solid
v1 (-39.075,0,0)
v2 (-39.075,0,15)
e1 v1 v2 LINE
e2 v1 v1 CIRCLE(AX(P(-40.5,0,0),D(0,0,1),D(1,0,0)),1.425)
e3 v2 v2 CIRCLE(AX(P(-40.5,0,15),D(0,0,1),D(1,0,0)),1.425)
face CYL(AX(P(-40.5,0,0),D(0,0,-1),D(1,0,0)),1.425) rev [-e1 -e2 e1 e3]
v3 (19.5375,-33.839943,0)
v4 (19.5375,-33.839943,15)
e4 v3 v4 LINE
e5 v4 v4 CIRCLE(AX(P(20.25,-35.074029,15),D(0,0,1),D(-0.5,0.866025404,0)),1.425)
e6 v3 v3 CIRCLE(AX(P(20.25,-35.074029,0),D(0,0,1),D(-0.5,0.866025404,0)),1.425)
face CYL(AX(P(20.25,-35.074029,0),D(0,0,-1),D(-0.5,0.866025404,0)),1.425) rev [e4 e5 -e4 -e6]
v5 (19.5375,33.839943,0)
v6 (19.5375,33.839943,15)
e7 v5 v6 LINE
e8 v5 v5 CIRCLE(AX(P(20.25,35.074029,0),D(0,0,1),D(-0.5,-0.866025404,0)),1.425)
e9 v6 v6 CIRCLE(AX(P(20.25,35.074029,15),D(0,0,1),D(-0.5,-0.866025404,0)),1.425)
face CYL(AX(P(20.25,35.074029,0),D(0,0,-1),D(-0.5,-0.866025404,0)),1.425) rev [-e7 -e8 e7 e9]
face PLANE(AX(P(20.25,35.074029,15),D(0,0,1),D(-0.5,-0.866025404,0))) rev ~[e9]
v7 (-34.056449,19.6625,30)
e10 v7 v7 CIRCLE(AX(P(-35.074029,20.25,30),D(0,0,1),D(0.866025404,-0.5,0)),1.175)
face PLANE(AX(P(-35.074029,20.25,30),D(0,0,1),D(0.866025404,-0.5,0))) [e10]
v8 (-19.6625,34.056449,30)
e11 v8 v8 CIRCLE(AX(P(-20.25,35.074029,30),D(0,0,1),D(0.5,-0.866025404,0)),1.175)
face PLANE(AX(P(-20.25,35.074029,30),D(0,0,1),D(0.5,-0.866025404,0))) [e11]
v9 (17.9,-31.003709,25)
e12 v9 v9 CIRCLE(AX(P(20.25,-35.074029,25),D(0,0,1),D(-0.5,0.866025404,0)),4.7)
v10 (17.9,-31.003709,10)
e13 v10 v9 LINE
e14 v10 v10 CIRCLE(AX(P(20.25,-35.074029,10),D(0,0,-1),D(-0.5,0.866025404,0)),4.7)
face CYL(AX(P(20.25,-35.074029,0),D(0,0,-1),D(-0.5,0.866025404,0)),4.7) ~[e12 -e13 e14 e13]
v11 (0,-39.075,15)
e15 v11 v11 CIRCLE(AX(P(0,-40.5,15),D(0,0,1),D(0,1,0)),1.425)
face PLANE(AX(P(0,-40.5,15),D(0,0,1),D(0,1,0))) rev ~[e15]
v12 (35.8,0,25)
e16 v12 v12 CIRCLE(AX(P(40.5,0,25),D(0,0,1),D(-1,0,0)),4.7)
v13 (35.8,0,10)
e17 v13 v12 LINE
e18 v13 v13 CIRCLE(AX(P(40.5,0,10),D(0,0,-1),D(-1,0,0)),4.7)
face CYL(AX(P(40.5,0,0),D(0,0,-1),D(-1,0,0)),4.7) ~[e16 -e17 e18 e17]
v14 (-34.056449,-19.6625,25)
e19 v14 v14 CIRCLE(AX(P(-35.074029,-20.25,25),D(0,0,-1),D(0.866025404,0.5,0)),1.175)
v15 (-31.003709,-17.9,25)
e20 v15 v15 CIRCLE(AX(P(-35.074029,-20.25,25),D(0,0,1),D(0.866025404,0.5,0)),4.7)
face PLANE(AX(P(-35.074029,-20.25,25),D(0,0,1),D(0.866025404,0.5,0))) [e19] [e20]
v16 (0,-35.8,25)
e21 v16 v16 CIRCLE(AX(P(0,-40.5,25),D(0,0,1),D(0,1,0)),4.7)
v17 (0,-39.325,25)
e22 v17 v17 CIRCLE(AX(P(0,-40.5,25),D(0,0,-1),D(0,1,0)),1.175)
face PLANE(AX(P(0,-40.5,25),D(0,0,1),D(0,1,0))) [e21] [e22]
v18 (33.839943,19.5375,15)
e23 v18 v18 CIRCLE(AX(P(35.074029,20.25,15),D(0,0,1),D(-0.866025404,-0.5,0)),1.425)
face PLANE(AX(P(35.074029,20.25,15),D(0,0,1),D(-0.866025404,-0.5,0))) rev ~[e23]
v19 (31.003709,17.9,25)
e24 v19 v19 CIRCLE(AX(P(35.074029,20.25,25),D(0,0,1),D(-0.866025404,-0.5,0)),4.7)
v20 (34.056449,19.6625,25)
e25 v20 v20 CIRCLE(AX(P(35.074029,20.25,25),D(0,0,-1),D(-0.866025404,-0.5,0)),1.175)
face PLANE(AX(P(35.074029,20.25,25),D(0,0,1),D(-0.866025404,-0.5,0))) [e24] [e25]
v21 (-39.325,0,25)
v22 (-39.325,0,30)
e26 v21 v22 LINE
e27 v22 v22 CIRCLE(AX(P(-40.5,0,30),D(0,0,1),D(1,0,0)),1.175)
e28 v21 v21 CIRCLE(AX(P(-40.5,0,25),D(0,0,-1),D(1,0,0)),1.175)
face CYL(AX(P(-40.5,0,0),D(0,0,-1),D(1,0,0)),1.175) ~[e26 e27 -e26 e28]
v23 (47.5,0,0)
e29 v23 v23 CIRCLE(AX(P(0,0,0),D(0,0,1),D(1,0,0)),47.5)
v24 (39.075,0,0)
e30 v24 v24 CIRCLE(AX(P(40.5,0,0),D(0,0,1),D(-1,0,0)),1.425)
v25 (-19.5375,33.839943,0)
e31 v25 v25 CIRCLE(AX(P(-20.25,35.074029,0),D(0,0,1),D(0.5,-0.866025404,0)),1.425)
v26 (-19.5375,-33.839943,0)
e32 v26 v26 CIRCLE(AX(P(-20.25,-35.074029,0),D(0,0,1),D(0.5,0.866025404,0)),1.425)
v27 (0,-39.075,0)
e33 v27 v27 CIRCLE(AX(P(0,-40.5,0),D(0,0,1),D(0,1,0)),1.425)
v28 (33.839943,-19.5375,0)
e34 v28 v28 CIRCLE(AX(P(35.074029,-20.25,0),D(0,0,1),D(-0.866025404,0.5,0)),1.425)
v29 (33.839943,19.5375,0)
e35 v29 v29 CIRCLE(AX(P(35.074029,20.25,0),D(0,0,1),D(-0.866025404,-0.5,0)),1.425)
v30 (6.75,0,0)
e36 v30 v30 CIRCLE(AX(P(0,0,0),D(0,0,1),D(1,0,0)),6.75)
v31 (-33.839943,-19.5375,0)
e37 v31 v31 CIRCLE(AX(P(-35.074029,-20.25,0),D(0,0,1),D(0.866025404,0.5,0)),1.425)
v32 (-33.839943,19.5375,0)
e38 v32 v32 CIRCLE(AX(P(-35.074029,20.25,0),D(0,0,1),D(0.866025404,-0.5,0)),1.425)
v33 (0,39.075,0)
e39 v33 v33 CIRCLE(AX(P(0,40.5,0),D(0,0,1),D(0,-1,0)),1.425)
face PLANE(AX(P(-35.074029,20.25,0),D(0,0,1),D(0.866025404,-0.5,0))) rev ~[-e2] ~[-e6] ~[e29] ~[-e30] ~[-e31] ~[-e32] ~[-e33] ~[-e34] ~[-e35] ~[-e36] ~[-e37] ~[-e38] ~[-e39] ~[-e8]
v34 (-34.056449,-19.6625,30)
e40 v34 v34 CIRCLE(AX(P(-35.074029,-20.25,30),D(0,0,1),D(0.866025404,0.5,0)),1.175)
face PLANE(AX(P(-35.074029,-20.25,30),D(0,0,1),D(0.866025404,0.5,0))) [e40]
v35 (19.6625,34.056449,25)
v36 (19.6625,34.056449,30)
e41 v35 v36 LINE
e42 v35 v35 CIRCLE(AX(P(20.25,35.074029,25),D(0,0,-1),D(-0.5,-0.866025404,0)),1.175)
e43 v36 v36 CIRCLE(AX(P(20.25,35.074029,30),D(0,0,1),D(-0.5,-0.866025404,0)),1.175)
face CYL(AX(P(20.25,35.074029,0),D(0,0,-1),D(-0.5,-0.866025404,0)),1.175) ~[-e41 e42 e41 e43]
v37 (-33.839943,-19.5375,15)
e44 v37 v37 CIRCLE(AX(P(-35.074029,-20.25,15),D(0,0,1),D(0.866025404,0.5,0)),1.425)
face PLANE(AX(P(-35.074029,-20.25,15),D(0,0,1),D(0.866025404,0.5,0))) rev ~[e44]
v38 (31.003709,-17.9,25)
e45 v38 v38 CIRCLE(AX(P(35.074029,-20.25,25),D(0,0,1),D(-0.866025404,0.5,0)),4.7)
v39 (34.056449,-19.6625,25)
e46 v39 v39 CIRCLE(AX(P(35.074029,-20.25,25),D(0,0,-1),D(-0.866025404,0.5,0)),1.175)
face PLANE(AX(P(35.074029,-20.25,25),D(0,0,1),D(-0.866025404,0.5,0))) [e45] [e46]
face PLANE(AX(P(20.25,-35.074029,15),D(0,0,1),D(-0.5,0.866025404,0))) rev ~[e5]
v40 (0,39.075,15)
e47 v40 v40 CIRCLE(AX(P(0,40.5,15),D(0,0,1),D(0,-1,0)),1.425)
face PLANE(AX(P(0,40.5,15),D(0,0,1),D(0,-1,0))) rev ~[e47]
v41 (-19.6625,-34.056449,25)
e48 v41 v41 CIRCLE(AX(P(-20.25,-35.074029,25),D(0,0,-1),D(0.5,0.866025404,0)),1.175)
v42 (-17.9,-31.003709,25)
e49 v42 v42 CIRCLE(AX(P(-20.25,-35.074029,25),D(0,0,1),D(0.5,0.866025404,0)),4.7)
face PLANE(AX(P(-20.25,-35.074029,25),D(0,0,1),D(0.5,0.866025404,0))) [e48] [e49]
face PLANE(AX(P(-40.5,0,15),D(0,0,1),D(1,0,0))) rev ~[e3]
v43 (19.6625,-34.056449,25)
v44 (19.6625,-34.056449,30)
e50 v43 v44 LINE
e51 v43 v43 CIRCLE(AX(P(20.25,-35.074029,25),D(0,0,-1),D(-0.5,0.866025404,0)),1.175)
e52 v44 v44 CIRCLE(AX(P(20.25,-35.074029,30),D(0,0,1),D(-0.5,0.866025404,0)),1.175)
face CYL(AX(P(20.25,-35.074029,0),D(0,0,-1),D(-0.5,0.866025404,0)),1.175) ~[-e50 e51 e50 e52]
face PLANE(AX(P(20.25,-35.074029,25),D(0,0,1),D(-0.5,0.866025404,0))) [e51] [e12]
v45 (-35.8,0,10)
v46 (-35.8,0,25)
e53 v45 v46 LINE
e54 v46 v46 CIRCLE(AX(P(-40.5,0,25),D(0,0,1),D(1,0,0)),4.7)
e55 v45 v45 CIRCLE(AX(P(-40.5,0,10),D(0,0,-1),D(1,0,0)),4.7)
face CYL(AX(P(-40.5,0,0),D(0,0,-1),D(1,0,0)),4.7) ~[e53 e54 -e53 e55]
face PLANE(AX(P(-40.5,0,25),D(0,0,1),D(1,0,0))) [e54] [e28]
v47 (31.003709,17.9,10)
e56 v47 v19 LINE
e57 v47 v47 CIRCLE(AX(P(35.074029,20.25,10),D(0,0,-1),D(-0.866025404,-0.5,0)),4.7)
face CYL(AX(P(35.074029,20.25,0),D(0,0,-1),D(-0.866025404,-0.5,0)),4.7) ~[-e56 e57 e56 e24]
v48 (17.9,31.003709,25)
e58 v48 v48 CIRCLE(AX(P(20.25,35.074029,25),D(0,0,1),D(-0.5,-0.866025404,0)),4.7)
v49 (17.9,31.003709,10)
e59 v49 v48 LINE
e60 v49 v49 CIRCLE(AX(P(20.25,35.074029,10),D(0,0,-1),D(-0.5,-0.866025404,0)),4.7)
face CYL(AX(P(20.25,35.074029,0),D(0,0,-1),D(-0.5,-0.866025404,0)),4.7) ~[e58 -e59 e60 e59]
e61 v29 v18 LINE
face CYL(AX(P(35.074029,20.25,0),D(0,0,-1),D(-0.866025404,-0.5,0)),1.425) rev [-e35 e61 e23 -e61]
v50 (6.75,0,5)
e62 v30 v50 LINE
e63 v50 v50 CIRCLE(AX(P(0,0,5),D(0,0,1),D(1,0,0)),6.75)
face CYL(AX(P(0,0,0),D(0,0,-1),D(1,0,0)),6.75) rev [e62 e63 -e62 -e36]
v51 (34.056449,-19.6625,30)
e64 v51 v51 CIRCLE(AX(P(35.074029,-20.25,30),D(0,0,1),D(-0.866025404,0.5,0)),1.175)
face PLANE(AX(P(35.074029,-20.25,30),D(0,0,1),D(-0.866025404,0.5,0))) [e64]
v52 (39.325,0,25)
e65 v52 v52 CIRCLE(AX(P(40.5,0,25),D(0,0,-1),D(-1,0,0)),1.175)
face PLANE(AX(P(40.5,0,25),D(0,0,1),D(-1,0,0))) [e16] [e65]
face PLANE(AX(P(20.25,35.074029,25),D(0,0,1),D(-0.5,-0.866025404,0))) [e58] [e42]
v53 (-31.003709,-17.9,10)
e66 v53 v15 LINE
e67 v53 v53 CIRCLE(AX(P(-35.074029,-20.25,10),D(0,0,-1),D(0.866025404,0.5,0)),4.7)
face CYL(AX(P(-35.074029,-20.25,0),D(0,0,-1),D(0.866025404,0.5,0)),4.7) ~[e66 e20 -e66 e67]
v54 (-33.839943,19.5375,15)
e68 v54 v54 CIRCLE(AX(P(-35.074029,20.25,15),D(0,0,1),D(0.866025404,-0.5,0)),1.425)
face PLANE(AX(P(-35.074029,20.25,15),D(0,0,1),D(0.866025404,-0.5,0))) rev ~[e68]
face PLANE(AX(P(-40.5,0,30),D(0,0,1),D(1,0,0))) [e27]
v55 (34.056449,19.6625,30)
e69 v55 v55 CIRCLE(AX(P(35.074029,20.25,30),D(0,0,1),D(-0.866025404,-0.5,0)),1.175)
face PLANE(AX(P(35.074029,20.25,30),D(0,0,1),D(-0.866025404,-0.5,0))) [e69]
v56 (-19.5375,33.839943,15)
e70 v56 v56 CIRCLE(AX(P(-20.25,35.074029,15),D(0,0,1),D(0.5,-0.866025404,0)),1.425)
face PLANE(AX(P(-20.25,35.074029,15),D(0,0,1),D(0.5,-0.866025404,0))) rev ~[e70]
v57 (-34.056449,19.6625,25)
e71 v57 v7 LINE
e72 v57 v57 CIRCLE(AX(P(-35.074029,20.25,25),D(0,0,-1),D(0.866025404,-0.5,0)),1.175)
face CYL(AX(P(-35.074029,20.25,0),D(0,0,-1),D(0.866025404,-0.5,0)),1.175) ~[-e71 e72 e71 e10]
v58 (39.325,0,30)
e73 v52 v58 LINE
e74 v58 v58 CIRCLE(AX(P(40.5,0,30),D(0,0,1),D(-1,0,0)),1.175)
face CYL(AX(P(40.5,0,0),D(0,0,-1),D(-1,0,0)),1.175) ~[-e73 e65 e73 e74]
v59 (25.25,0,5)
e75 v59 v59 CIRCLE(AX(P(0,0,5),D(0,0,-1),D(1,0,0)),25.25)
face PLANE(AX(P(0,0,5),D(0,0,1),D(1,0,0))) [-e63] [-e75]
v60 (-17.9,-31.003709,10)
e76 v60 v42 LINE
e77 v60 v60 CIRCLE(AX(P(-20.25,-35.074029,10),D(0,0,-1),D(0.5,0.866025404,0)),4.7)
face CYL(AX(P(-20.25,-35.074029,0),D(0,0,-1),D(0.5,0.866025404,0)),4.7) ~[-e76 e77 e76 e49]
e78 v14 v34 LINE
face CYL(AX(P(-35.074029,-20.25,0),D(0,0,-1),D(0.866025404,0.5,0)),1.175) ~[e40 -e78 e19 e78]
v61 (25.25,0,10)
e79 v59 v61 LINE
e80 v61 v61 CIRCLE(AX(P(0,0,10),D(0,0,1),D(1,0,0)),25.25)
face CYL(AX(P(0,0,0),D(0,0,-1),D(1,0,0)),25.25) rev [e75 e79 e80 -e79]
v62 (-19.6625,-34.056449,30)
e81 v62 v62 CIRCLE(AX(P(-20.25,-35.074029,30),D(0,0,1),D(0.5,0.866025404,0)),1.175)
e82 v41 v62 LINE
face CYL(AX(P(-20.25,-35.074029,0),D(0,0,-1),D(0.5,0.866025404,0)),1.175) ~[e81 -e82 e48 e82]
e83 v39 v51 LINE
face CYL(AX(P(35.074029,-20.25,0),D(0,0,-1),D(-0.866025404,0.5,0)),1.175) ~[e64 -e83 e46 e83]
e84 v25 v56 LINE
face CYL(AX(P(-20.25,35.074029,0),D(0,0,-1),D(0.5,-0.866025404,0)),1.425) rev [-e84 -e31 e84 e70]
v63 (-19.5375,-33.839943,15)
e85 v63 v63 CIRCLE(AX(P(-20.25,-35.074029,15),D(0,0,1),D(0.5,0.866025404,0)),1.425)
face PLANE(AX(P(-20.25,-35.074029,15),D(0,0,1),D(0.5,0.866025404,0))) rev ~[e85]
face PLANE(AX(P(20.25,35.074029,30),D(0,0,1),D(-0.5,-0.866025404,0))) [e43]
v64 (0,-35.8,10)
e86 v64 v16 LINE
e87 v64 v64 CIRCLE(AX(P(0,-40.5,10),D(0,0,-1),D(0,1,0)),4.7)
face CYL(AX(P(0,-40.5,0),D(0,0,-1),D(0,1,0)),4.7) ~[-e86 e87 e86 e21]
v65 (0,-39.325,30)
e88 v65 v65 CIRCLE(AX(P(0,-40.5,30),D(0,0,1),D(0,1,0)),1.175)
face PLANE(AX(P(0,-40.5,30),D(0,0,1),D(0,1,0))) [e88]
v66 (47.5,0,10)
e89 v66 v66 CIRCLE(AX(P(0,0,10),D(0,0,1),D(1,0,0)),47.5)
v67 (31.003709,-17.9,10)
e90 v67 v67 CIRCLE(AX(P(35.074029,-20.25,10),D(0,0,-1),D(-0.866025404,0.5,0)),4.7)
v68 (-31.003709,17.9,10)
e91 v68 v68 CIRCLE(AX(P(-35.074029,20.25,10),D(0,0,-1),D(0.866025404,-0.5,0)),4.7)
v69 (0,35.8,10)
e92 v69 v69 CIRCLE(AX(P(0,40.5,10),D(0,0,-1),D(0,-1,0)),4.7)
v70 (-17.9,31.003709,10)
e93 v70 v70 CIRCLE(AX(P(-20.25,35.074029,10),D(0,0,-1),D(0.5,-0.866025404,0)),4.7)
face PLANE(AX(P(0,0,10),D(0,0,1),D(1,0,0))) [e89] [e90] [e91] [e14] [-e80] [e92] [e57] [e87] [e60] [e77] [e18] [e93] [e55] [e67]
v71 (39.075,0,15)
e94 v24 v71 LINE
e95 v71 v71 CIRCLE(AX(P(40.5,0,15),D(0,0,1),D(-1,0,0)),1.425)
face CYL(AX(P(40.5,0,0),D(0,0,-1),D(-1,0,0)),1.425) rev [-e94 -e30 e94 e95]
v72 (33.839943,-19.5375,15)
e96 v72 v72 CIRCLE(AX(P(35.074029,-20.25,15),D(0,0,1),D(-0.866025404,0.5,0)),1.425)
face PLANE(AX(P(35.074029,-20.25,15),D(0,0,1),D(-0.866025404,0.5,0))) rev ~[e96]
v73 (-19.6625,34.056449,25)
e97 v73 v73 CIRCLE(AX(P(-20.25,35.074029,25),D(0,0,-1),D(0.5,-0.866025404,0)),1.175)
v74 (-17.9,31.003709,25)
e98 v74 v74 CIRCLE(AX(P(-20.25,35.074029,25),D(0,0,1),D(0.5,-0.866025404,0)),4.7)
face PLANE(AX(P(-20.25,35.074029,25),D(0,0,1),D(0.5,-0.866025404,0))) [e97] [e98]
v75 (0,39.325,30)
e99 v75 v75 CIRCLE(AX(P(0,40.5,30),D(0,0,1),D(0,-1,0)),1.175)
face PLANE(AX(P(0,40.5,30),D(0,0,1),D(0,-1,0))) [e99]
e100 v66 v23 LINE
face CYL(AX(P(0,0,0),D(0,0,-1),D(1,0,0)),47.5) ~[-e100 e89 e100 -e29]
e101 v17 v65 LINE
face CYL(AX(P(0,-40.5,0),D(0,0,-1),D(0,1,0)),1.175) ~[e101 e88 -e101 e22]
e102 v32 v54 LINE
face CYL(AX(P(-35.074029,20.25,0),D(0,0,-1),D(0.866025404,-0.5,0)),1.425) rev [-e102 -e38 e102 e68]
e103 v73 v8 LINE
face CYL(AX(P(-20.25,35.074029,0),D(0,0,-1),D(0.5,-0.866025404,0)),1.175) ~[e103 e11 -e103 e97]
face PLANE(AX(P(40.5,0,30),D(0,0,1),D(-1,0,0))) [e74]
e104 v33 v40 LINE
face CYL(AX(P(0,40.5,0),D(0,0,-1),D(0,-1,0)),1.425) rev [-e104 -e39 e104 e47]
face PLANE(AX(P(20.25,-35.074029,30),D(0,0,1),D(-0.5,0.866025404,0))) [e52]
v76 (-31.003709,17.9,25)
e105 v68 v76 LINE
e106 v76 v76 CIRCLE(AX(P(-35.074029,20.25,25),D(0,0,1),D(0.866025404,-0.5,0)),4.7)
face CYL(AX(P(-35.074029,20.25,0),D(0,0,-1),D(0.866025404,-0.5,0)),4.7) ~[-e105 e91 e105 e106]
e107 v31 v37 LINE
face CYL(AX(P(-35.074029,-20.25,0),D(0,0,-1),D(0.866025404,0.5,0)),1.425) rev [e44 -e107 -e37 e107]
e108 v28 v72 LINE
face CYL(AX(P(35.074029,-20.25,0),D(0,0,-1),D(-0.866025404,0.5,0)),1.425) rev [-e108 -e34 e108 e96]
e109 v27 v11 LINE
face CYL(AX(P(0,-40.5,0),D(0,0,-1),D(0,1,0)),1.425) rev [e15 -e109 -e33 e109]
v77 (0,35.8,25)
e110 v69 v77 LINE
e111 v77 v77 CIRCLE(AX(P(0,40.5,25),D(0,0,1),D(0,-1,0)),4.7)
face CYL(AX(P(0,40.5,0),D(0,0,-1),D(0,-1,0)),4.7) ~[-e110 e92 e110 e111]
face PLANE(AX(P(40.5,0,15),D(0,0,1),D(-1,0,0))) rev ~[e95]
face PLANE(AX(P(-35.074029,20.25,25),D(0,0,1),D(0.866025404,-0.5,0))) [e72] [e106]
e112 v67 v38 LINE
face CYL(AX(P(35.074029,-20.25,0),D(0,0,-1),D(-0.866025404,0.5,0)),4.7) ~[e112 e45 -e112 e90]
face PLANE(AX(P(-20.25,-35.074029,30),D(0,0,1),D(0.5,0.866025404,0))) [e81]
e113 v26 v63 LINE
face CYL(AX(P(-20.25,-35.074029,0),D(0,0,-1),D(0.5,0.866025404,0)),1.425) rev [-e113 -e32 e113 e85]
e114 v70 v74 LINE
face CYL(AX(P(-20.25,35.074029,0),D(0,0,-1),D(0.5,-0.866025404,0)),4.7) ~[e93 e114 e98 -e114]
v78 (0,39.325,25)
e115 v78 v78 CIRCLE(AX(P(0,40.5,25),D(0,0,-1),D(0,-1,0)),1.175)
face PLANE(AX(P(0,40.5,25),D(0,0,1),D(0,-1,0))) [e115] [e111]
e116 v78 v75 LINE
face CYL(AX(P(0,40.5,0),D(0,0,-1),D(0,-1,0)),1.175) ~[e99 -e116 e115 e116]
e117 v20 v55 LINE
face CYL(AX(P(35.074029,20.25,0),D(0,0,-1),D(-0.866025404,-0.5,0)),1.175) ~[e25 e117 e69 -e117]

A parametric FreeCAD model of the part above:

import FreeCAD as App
import Part
import Sketcher
from FreeCAD import Vector

doc = App.newDocument("Part")
params = doc.addObject("Spreadsheet::Sheet", "Params")
for row, (alias, value) in enumerate([
    ("sketch1_diameter", "95 mm"),
    ("sketch1_diameter2", "13.5 mm"),
    ("pad1_length", "5 mm"),
    ("sketch2_diameter", "95 mm"),
    ("sketch2_diameter2", "50.5 mm"),
    ("pad2_length", "10 mm"),
    ("sketch3_diameter", "2.35 mm"),
    ("pad3_length", "30 mm"),
    ("sketch4_diameter", "9.4 mm"),
    ("pad4_length", "25 mm"),
    ("sketch5_diameter", "2.85 mm"),
    ("pocket1_length", "15 mm"),
], start=1):
    params.set(f"A{row}", alias)
    params.set(f"B{row}", "=" + value)
    params.setAlias(f"B{row}", alias)

body = doc.addObject("PartDesign::Body", "Body")

# Sketch on XY plane
sketch1 = doc.addObject("Sketcher::SketchObject", "Sketch")
body.addObject(sketch1)
sketch1.AttachmentSupport = (doc.XY_Plane, [""])
sketch1.MapMode = "FlatFace"
sketch1.addGeometry([
    Part.Circle(Vector(0, 0, 0), Vector(0, 0, 1), 48),
    Part.Circle(Vector(0, 0, 0), Vector(0, 0, 1), 7),
], False)
sketch1.addConstraint([
    Sketcher.Constraint("Coincident", 0, 3, -1, 1),
    Sketcher.Constraint("Coincident", 1, 3, -1, 1),
    Sketcher.Constraint("Diameter", 0, 95.0),
    Sketcher.Constraint("Diameter", 1, 13.5),
])
sketch1.setExpression("Constraints[2]", "Params.sketch1_diameter")
sketch1.setExpression("Constraints[3]", "Params.sketch1_diameter2")
pad1 = doc.addObject("PartDesign::Pad", "Pad")
body.addObject(pad1)
pad1.Profile = sketch1
pad1.setExpression("Length", "Params.pad1_length")

# Sketch on XY plane
sketch2 = doc.addObject("Sketcher::SketchObject", "Sketch001")
body.addObject(sketch2)
sketch2.AttachmentSupport = (doc.XY_Plane, [""])
sketch2.MapMode = "FlatFace"
sketch2.addGeometry([
    Part.Circle(Vector(0, 0, 0), Vector(0, 0, 1), 48),
    Part.Circle(Vector(0, 0, 0), Vector(0, 0, 1), 25),
], False)
sketch2.addConstraint([
    Sketcher.Constraint("Coincident", 0, 3, -1, 1),
    Sketcher.Constraint("Coincident", 1, 3, -1, 1),
    Sketcher.Constraint("Diameter", 0, 95.0),
    Sketcher.Constraint("Diameter", 1, 50.5),
])
sketch2.setExpression("Constraints[2]", "Params.sketch2_diameter")
sketch2.setExpression("Constraints[3]", "Params.sketch2_diameter2")
pad2 = doc.addObject("PartDesign::Pad", "Pad001")
body.addObject(pad2)
pad2.Profile = sketch2
pad2.setExpression("Length", "Params.pad2_length")

# Sketch on XY plane
sketch3 = doc.addObject("Sketcher::SketchObject", "Sketch002")
body.addObject(sketch3)
sketch3.AttachmentSupport = (doc.XY_Plane, [""])
sketch3.MapMode = "FlatFace"
sketch3.addGeometry(Part.Circle(Vector(-40.5, 0, 0), Vector(0, 0, 1), 1.2), False)
sketch3.addConstraint([
    Sketcher.Constraint("PointOnObject", 0, 3, -1),
    Sketcher.Constraint("Diameter", 0, 2.35),
    Sketcher.Constraint("DistanceX", 0, 3, -1, 1, 40.5),
])
sketch3.setExpression("Constraints[1]", "Params.sketch3_diameter")
pad3 = doc.addObject("PartDesign::Pad", "Pad002")
body.addObject(pad3)
pad3.Profile = sketch3
pad3.setExpression("Length", "Params.pad3_length")

# Sketch on XY plane
sketch4 = doc.addObject("Sketcher::SketchObject", "Sketch003")
body.addObject(sketch4)
sketch4.AttachmentSupport = (doc.XY_Plane, [""])
sketch4.MapMode = "FlatFace"
sketch4.addGeometry(Part.Circle(Vector(-40.5, 0, 0), Vector(0, 0, 1), 4.7), False)
sketch4.addConstraint([
    Sketcher.Constraint("PointOnObject", 0, 3, -1),
    Sketcher.Constraint("Diameter", 0, 9.4),
    Sketcher.Constraint("DistanceX", 0, 3, -1, 1, 40.5),
])
sketch4.setExpression("Constraints[1]", "Params.sketch4_diameter")
pad4 = doc.addObject("PartDesign::Pad", "Pad003")
body.addObject(pad4)
pad4.Profile = sketch4
pad4.setExpression("Length", "Params.pad4_length")

# Sketch on XY plane
sketch5 = doc.addObject("Sketcher::SketchObject", "Sketch004")
body.addObject(sketch5)
sketch5.AttachmentSupport = (doc.XY_Plane, [""])
sketch5.MapMode = "FlatFace"
sketch5.addGeometry(Part.Circle(Vector(-40.5, 0, 0), Vector(0, 0, 1), 1.4), False)
sketch5.addConstraint([
    Sketcher.Constraint("PointOnObject", 0, 3, -1),
    Sketcher.Constraint("Diameter", 0, 2.85),
    Sketcher.Constraint("DistanceX", 0, 3, -1, 1, 40.5),
])
sketch5.setExpression("Constraints[1]", "Params.sketch5_diameter")
pocket1 = doc.addObject("PartDesign::Pocket", "Pocket")
body.addObject(pocket1)
pocket1.Profile = sketch5
pocket1.setExpression("Length", "Params.pocket1_length")
pocket1.Reversed = True
doc.recompute()

polarpattern = doc.addObject("PartDesign::PolarPattern", "PolarPattern")
body.addObject(polarpattern)
polarpattern.Originals = [pad3, pad4, pocket1]
polarpattern.Axis = (doc.Z_Axis, [""])
polarpattern.Angle = 360
polarpattern.Occurrences = 12
body.Tip = polarpattern

doc.recompute()
